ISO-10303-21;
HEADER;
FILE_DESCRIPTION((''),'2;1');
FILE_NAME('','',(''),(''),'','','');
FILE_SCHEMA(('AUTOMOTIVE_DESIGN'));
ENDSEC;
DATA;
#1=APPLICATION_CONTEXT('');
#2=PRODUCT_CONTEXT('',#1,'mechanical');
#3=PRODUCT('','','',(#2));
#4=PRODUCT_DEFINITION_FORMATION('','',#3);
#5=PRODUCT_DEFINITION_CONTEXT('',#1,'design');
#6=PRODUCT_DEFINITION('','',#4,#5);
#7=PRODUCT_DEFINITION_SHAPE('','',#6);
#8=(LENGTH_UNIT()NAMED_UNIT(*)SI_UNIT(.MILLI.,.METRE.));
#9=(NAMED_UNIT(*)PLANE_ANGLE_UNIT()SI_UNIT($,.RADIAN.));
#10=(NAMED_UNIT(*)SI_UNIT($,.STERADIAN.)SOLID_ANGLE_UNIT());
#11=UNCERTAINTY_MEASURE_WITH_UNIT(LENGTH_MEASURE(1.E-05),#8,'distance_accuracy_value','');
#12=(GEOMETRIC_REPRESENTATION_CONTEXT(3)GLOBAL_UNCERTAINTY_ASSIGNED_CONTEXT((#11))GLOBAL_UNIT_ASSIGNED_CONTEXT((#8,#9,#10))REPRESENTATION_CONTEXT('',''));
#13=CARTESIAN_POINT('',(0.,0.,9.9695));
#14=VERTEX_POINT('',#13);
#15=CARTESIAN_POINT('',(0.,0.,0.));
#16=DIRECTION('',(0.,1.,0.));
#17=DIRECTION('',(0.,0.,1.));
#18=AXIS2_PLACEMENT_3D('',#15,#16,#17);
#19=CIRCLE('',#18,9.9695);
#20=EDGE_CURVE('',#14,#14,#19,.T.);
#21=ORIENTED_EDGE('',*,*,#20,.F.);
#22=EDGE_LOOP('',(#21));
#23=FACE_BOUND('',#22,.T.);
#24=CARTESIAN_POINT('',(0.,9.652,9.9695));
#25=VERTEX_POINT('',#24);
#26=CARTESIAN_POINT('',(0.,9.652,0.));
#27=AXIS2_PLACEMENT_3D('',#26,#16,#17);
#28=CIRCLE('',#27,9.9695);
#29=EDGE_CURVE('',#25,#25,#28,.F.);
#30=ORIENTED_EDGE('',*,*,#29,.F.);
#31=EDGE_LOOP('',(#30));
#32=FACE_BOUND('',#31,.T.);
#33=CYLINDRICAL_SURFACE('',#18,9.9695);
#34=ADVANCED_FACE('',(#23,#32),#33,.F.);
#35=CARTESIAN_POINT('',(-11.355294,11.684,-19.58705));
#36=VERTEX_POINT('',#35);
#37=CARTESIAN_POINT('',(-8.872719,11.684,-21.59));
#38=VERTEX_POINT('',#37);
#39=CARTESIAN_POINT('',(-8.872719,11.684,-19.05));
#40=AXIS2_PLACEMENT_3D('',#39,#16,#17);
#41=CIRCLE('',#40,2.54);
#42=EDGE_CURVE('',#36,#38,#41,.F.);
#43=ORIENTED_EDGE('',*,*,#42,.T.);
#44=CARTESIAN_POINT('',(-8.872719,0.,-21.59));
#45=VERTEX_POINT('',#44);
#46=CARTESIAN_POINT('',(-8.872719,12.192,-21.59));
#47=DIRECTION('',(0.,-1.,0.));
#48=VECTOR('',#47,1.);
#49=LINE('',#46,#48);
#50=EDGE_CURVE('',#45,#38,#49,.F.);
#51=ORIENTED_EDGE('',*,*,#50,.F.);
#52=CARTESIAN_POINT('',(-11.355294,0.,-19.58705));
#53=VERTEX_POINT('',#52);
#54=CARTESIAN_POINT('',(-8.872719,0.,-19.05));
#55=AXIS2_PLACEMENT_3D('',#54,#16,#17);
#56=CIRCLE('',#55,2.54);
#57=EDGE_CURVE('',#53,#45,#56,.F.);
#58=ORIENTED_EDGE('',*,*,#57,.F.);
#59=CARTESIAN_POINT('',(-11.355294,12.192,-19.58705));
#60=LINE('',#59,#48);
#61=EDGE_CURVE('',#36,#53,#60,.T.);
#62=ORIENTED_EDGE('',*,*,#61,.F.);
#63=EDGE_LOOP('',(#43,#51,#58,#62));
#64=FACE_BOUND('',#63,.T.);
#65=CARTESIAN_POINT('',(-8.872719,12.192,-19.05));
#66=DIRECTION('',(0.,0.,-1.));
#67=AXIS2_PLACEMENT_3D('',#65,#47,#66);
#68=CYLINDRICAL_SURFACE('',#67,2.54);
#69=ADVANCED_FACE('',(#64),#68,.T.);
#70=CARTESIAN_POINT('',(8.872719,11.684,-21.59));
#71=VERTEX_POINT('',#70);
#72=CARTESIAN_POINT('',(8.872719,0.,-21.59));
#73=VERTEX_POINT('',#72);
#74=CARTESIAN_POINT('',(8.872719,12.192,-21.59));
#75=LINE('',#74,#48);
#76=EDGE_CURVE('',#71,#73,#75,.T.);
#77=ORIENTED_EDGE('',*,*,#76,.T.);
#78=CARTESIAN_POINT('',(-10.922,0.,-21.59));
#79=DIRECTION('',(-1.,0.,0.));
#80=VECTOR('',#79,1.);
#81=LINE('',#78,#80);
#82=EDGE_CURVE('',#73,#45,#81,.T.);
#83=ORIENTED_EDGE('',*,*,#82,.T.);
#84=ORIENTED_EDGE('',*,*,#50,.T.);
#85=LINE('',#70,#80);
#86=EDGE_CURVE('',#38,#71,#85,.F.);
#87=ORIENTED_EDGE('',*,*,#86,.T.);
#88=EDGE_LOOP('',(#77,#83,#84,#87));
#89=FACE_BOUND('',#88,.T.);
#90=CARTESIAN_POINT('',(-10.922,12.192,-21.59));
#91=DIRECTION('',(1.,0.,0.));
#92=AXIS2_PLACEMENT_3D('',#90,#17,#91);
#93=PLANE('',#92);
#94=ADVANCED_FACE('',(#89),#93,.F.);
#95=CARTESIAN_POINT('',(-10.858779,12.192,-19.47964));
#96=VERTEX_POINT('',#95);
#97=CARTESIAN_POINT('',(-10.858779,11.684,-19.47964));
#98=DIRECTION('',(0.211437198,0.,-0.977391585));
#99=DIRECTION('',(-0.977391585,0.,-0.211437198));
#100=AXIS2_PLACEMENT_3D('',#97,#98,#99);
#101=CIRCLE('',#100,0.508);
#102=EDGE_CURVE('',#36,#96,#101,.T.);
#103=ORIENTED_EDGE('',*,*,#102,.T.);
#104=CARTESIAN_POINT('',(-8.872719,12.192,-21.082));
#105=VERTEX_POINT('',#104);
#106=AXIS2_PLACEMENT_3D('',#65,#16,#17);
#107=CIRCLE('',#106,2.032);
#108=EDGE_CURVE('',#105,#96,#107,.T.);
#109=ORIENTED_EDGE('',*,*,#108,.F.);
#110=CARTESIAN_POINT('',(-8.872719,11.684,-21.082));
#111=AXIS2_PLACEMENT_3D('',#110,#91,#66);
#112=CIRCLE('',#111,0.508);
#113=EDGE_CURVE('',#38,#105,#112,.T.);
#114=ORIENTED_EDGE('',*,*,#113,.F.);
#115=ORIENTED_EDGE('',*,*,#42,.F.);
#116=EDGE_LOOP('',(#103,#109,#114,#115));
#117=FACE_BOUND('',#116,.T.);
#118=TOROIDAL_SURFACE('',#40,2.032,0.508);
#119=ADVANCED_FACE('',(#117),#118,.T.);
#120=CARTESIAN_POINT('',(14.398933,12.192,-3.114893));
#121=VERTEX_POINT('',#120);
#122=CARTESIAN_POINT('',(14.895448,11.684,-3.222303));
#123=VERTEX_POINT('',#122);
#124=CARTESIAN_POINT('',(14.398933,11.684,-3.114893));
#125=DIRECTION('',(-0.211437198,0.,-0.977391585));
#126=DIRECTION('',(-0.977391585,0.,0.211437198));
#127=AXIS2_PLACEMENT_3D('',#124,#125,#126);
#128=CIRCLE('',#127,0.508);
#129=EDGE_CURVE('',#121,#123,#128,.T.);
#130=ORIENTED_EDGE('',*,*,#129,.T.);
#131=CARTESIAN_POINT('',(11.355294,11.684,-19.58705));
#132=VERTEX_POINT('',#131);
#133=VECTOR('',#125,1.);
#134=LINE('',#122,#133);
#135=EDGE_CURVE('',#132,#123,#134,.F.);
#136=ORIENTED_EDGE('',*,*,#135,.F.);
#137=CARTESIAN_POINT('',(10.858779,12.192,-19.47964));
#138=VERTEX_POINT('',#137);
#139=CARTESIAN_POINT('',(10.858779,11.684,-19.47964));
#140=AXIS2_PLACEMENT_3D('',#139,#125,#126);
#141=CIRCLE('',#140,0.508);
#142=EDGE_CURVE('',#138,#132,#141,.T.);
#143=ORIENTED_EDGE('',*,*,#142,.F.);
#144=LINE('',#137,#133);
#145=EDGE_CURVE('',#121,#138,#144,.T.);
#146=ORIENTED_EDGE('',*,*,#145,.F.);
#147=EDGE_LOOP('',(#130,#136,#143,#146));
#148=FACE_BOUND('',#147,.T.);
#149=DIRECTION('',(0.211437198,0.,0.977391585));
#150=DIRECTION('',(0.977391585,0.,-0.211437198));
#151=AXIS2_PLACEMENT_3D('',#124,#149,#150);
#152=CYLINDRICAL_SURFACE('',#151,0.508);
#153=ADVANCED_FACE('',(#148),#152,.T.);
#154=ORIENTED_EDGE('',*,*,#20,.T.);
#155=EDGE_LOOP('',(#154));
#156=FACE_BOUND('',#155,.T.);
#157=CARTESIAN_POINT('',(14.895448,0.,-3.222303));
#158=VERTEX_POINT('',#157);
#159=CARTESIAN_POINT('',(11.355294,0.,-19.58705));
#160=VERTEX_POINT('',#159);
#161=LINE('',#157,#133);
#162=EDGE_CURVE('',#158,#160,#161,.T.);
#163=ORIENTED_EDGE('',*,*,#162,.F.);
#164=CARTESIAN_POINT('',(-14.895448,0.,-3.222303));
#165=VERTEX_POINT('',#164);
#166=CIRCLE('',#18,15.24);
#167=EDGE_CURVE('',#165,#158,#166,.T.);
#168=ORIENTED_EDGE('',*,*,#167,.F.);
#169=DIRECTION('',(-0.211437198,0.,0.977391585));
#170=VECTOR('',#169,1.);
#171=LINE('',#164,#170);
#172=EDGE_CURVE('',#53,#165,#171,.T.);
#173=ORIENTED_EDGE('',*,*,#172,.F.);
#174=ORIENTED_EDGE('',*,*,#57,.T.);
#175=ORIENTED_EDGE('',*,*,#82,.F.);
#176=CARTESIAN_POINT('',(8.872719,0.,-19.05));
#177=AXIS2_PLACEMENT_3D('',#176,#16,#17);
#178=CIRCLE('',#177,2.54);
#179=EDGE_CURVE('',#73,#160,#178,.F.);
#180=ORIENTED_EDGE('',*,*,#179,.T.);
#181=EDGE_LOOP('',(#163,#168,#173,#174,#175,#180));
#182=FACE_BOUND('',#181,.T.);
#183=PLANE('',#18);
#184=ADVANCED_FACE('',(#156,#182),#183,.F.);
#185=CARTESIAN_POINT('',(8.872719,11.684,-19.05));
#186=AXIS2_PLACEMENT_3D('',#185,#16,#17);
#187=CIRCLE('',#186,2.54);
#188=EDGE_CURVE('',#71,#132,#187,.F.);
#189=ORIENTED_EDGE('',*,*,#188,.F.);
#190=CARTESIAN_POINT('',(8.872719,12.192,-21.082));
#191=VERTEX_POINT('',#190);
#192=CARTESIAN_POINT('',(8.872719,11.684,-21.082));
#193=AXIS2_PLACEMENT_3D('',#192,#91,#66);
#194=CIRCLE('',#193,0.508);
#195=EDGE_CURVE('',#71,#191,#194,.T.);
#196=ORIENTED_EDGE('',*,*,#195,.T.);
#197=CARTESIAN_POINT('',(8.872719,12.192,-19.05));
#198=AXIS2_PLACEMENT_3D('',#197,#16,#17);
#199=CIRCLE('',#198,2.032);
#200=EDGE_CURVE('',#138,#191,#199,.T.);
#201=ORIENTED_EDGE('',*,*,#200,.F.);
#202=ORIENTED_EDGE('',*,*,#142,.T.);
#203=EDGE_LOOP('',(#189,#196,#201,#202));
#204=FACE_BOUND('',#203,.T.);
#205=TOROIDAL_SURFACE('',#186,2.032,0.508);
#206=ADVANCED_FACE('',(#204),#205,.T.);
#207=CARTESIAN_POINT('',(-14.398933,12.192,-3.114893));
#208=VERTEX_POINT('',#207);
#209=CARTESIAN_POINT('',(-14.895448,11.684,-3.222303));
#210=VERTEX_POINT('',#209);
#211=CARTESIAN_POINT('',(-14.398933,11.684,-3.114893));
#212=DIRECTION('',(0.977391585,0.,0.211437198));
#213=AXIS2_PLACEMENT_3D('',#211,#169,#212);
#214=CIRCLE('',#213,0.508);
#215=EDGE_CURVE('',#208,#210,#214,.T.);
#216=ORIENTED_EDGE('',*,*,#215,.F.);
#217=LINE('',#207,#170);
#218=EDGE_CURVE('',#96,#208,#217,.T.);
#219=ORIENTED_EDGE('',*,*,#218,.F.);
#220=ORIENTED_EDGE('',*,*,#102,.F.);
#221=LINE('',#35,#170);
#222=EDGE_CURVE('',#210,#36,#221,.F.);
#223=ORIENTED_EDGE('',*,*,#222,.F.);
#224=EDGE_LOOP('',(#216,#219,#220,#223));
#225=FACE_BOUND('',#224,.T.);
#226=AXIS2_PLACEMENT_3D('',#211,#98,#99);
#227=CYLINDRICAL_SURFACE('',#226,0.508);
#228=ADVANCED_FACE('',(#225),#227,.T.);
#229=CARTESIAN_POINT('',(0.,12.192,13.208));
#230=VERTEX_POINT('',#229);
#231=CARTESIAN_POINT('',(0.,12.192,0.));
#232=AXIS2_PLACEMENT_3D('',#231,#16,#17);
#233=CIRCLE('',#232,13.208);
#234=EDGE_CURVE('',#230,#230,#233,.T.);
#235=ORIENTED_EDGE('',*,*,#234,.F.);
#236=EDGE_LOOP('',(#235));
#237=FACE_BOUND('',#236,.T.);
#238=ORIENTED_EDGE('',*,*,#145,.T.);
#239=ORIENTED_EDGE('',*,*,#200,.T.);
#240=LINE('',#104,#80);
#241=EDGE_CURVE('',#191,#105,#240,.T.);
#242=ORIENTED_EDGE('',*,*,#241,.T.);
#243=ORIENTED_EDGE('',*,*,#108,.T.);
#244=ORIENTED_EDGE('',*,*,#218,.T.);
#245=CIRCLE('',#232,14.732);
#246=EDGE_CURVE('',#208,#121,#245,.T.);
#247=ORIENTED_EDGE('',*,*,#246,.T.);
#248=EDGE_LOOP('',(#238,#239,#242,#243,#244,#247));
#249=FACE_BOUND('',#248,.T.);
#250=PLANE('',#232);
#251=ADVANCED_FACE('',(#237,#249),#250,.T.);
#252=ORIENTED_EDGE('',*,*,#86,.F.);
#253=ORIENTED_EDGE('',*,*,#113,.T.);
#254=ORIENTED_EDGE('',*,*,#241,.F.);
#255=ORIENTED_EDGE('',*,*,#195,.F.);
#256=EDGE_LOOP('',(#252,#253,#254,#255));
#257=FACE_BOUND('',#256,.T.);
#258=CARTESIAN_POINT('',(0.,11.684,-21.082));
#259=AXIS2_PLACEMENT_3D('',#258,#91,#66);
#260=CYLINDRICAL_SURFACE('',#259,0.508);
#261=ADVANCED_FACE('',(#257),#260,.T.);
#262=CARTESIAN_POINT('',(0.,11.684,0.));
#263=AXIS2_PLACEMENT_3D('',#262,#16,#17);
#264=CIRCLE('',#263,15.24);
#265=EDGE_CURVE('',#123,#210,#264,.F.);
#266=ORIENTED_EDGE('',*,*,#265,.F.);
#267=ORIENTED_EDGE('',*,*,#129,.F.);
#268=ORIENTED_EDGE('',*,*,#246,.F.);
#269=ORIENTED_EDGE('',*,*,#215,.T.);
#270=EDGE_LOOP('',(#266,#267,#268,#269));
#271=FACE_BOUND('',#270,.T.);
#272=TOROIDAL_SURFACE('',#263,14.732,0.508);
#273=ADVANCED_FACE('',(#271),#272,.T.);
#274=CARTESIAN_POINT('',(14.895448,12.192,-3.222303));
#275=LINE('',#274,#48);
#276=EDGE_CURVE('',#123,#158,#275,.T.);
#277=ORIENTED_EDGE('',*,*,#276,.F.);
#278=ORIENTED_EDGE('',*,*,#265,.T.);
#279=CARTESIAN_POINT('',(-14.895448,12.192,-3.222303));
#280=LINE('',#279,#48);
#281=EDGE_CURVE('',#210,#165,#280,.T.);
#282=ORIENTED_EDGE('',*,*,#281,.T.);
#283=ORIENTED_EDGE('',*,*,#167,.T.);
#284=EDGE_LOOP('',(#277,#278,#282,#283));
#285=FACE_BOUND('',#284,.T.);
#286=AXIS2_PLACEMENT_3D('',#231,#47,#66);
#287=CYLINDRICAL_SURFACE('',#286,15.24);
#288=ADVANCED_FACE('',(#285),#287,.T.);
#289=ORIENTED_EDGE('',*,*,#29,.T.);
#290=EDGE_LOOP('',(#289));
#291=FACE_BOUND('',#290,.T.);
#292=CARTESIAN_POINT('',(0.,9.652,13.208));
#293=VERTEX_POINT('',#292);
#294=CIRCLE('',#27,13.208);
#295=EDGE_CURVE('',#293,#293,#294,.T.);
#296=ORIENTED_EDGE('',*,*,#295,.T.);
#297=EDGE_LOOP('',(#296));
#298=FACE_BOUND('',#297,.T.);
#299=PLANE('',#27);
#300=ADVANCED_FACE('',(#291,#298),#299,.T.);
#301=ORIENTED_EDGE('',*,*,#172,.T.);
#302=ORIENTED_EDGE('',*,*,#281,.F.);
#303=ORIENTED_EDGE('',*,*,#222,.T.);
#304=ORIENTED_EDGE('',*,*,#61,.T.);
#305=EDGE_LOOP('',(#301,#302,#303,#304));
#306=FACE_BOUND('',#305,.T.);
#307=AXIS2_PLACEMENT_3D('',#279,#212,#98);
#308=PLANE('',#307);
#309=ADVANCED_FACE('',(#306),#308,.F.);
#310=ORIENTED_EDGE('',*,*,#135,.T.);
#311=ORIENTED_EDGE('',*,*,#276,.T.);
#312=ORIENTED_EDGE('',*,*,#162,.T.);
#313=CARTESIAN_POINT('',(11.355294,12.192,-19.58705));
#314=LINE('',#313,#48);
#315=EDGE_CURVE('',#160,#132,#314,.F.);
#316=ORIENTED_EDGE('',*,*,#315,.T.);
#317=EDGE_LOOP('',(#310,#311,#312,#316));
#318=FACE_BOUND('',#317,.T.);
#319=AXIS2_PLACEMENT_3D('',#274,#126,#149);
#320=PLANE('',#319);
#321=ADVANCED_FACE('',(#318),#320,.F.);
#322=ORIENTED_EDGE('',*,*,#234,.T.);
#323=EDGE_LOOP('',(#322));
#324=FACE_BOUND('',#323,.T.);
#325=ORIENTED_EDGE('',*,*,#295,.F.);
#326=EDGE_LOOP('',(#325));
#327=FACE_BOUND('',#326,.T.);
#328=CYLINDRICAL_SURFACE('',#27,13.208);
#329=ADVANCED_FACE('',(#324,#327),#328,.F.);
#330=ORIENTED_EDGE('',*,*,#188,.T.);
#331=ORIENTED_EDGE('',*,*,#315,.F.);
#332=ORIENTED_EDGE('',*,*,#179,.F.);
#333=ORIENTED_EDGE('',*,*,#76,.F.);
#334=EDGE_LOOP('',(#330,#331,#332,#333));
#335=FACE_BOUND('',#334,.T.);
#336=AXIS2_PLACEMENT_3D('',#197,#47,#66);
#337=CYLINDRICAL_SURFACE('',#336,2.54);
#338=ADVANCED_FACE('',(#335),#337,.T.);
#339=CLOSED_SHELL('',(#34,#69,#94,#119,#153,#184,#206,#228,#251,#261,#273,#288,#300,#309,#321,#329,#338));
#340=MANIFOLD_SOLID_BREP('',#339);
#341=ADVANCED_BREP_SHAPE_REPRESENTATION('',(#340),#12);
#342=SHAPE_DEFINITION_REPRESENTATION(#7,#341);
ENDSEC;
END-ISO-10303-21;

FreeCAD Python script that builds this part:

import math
import FreeCAD as App
import Part
import Sketcher
from FreeCAD import Vector
Q = App.Units.Quantity


def edges_at(feature, points):
    """Names of the edges that pass closest to the given points."""
    edges = feature.Shape.Edges
    near = lambda p: min(range(len(edges)), key=lambda i: edges[i].distToShape(Part.Vertex(*p))[0])
    return sorted({f"Edge{near(p) + 1}" for p in points})

doc = App.newDocument("Part")
body = doc.addObject("PartDesign::Body", "Body")

# Sketch on XZ plane
sketch1 = body.newObject("Sketcher::SketchObject", "Sketch")
sketch1.AttachmentSupport = (doc.getObject("XZ_Plane"), [""])
sketch1.MapMode = "FlatFace"
sketch1.addGeometry([
    Part.LineSegment(Vector(11, -22, 0), Vector(-11, -22, 0)),
    Part.LineSegment(Vector(-11, -22, 0), Vector(-15, -3, 0)),
    Part.ArcOfCircle(Part.Circle(Vector(0, 0, 0), Vector(0, 0, 1), 15), math.radians(-12), math.radians(192)),
    Part.LineSegment(Vector(15, -3, 0), Vector(11, -22, 0)),
], False)
sketch1.addConstraint([
    Sketcher.Constraint("Coincident", 0, 2, 1, 1),
    Sketcher.Constraint("Tangent", 1, 2, 2, 2),
    Sketcher.Constraint("Tangent", 2, 1, 3, 1),
    Sketcher.Constraint("Coincident", 3, 2, 0, 1),
    Sketcher.Constraint("Horizontal", 0),
    Sketcher.Constraint("Coincident", 2, 3, -1, 1),
    Sketcher.Constraint("Horizontal", 1, 2, 2, 1),
    Sketcher.Constraint("Radius", 2, Q("0.6 in")),
    Sketcher.Constraint("DistanceX", 0, 2, 0, 1, Q("0.86 in")),
    Sketcher.Constraint("DistanceY", 0, 2, -1, 1, Q("0.85 in")),
])
pad1 = body.newObject("PartDesign::Pad", "Pad")
pad1.Profile = sketch1
pad1.Length = Q("0.48 in")
pad1.Reversed = True
doc.recompute()

fillet = body.newObject("PartDesign::Fillet", "Fillet")
fillet.Base = (pad1, edges_at(pad1, [(-10.922, 6.096, -21.59), (10.922, 6.096, -21.59)]))
fillet.Radius = Q("0.1 in")
doc.recompute()

fillet2 = body.newObject("PartDesign::Fillet", "Fillet001")
fillet2.Base = (fillet, edges_at(fillet, [
    (13.125, 12.192, -11.405),
    (-13.125, 12.192, -11.405),
    (0, 12.192, -21.59),
    (10.468, 12.192, -21.027),
    (-10.468, 12.192, -21.027),
    (0, 12.192, 15.24),
]))
fillet2.Radius = Q("0.02 in")

# Sketch on XZ plane
sketch2 = body.newObject("Sketcher::SketchObject", "Sketch001")
sketch2.AttachmentSupport = (doc.getObject("XZ_Plane"), [""])
sketch2.MapMode = "FlatFace"
sketch2.AttachmentOffset = App.Placement(Vector(0, 0, -0.48 * 25.4), App.Rotation())
sketch2.addGeometry(Part.Circle(Vector(0, 0, 0), Vector(0, 0, 1), 10), False)
sketch2.addConstraint([
    Sketcher.Constraint("Coincident", 0, 3, -1, 1),
    Sketcher.Constraint("Diameter", 0, Q("0.785 in")),
])
pocket1 = body.newObject("PartDesign::Pocket", "Pocket")
pocket1.Profile = sketch2
pocket1.Type = "ThroughAll"
pocket1.Reversed = True

# Sketch on XZ plane
sketch3 = body.newObject("Sketcher::SketchObject", "Sketch002")
sketch3.AttachmentSupport = (doc.getObject("XZ_Plane"), [""])
sketch3.MapMode = "FlatFace"
sketch3.AttachmentOffset = App.Placement(Vector(0, 0, -0.48 * 25.4), App.Rotation())
sketch3.addGeometry(Part.Circle(Vector(0, 0, 0), Vector(0, 0, 1), 13), False)
sketch3.addConstraint([
    Sketcher.Constraint("Coincident", 0, 3, -1, 1),
    Sketcher.Constraint("Diameter", 0, Q("1.04 in")),
])
pocket2 = body.newObject("PartDesign::Pocket", "Pocket001")
pocket2.Profile = sketch3
pocket2.Length = Q("0.1 in")
pocket2.Reversed = True

doc.recompute()
